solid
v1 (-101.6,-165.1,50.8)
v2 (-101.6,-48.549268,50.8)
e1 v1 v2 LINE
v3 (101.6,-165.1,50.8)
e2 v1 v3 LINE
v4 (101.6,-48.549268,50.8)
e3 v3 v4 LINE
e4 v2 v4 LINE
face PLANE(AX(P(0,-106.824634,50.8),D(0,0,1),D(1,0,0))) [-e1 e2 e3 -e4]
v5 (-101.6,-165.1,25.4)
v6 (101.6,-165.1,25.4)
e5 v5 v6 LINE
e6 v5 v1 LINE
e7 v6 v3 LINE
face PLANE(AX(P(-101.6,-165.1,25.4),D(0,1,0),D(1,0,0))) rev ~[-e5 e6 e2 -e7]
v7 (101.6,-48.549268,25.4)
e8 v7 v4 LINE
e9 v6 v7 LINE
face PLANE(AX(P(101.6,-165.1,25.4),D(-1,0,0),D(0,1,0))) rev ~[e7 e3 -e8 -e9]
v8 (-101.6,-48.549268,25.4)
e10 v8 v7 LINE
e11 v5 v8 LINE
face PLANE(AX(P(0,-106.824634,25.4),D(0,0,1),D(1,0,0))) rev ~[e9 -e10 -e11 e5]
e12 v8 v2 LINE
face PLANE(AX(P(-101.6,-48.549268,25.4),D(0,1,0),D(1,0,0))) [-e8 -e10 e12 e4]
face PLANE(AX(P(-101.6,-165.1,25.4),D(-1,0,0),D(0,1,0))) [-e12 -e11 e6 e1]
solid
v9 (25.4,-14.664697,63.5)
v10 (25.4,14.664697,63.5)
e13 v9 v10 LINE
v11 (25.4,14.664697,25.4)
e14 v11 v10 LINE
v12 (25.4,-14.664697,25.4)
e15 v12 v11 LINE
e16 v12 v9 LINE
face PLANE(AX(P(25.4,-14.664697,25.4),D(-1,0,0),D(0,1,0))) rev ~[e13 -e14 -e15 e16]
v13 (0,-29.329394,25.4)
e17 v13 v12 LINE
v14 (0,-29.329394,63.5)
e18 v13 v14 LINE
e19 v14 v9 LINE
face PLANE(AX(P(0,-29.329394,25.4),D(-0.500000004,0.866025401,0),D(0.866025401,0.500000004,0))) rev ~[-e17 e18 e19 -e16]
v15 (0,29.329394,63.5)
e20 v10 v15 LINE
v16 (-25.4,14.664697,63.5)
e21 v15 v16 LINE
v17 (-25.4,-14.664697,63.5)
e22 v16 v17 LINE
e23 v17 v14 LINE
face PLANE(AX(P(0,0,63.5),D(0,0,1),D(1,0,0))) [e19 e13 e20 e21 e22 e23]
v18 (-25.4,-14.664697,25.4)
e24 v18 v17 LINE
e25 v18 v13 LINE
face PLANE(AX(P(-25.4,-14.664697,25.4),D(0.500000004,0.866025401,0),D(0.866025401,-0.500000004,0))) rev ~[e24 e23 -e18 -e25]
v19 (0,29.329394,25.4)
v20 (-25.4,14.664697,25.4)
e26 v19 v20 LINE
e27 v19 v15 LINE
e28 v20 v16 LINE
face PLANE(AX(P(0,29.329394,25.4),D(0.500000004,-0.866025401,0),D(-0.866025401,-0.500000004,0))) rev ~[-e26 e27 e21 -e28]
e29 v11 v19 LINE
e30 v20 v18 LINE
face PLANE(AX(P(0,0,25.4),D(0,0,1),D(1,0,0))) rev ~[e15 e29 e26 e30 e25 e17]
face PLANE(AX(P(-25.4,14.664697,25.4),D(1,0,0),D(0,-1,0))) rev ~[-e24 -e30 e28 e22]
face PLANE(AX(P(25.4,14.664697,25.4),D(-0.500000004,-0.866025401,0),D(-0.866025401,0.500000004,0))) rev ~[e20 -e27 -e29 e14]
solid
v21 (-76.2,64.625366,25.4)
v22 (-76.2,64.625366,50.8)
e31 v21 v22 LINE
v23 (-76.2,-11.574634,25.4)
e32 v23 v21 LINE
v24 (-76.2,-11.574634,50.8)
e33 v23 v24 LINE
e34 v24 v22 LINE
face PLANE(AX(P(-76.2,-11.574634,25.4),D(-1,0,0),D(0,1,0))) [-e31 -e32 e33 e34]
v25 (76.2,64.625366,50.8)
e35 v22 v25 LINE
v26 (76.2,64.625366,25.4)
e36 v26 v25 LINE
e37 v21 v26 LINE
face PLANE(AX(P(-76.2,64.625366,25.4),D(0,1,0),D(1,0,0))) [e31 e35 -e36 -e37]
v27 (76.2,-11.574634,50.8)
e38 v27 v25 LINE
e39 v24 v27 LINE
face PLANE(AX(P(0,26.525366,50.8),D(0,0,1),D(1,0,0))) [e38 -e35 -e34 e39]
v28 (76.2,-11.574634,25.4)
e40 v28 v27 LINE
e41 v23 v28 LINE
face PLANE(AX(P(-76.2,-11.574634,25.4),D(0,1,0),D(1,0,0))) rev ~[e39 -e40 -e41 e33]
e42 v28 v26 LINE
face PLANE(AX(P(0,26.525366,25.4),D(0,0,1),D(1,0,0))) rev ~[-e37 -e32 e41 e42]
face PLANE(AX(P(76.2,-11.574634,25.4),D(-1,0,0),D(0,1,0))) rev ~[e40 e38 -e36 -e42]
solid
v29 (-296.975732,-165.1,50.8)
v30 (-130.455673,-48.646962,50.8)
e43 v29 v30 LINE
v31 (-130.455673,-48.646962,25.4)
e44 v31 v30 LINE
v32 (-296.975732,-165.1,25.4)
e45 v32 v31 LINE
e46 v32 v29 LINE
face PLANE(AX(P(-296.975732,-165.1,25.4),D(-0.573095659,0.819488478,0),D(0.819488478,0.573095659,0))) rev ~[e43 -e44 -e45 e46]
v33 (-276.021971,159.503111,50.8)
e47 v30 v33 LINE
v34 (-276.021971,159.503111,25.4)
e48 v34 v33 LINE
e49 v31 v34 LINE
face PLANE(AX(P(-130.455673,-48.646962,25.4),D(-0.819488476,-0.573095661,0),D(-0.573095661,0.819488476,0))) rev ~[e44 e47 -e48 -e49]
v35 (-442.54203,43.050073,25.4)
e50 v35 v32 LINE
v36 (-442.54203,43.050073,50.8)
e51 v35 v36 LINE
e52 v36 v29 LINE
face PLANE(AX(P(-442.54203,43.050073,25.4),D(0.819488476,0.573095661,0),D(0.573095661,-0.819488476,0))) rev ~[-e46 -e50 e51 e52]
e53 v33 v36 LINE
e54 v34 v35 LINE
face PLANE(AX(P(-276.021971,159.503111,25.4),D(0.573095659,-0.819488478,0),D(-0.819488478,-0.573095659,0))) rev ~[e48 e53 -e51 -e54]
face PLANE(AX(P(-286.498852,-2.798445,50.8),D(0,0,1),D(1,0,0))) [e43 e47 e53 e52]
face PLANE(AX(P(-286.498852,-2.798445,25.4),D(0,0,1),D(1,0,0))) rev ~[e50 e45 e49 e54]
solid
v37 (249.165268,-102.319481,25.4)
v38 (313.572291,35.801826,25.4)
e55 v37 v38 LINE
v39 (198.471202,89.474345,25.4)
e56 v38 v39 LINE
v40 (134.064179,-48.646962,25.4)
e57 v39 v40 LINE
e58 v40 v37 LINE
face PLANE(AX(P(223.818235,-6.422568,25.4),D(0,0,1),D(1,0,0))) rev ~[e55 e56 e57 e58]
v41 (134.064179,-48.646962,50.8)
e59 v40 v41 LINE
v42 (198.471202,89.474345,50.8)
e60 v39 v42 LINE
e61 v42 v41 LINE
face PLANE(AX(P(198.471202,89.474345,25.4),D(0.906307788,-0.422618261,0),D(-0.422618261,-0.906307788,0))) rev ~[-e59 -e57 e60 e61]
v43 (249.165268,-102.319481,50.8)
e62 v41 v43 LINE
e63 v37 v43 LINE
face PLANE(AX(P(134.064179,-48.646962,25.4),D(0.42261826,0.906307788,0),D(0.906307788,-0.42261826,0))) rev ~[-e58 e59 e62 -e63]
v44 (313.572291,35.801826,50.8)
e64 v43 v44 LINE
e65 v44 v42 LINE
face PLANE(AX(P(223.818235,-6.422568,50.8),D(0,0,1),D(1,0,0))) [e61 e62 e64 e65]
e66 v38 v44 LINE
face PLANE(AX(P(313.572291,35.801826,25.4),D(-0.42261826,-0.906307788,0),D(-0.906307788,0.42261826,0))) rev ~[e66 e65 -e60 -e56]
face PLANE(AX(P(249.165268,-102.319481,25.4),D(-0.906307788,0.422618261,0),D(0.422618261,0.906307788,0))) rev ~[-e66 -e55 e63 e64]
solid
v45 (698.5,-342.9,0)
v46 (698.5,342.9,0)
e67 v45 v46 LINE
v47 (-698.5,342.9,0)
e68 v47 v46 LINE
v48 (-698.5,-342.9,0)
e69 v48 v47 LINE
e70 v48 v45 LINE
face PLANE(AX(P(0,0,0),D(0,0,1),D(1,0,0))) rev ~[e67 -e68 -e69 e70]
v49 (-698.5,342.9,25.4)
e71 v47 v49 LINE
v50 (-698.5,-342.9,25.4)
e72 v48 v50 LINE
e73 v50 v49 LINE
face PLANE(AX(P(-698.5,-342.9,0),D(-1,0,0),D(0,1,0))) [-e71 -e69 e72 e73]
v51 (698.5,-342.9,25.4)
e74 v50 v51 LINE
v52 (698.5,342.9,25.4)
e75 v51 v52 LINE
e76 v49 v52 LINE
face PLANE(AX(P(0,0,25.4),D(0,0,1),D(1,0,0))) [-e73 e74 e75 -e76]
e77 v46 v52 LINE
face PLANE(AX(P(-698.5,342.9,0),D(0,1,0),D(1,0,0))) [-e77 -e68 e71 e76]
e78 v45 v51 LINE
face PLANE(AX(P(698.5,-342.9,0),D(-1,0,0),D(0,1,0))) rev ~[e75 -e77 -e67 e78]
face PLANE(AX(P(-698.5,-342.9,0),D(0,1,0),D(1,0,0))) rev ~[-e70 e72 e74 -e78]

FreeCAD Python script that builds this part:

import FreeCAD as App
import Part
import Sketcher
Q = App.Units.Quantity


def add_polygon(sketch, points):
    """Adds a closed chain of lines whose ends are joined by coincident constraints."""
    first, n = sketch.GeometryCount, len(points)
    for a, b in zip(points, points[1:] + points[:1]):
        sketch.addGeometry(Part.LineSegment(App.Vector(*a, 0), App.Vector(*b, 0)), False)
    for i in range(n):
        sketch.addConstraint(Sketcher.Constraint("Coincident", first + i, 2, first + (i + 1) % n, 1))

doc = App.newDocument("Part")
body = doc.addObject("PartDesign::Body", "Body")

# Sketch on XY plane
sketch1 = body.newObject("Sketcher::SketchObject", "Sketch")
sketch1.AttachmentSupport = (doc.getObject("XY_Plane"), [""])
sketch1.MapMode = "FlatFace"
add_polygon(sketch1, [(-698, 343), (-698, -343), (698, -343), (698, 343)])  # lines 0-3
sketch1.addConstraint([
    Sketcher.Constraint("Vertical", 0),
    Sketcher.Constraint("Horizontal", 1),
    Sketcher.Constraint("Vertical", 2),
    Sketcher.Constraint("Horizontal", 3),
    Sketcher.Constraint("Symmetric", 0, 2, 2, 2, -1, 1),
    Sketcher.Constraint("DistanceX", 1, 1, 1, 2, Q("55 in")),
    Sketcher.Constraint("DistanceY", 0, 2, 0, 1, Q("27 in")),
])
pad1 = body.newObject("PartDesign::Pad", "Pad")
pad1.Profile = sketch1
pad1.Length = Q("1 in")
body2 = doc.addObject("PartDesign::Body", "Body001")
body2.AllowCompound = True

# Sketch on XY plane
sketch2 = body2.newObject("Sketcher::SketchObject", "Sketch001")
sketch2.AttachmentSupport = (doc.getObject("XY_Plane001"), [""])
sketch2.MapMode = "FlatFace"
sketch2.AttachmentOffset = App.Placement(App.Vector(0, 0, 1 * 25.4), App.Rotation())
add_polygon(sketch2, [(-102, -49), (-102, -165), (102, -165), (102, -49)])  # lines 0-3
add_polygon(sketch2, [(-297, -165), (-130, -49), (-276, 160), (-443, 43)])  # lines 4-7
add_polygon(sketch2, [(314, 36), (198, 89), (134, -49), (249, -102)])  # lines 8-11
add_polygon(sketch2, [(-76, 65), (-76, -12), (76, -12), (76, 65)])  # lines 12-15
sketch2.addConstraint([
    Sketcher.Constraint("Vertical", 0),
    Sketcher.Constraint("Horizontal", 1),
    Sketcher.Constraint("Vertical", 2),
    Sketcher.Constraint("Horizontal", 3),
    Sketcher.Constraint("Vertical", 12),
    Sketcher.Constraint("Horizontal", 13),
    Sketcher.Constraint("Vertical", 14),
    Sketcher.Constraint("Horizontal", 15),
    Sketcher.Constraint("Perpendicular", 4, 5),
    Sketcher.Constraint("Perpendicular", 5, 6),
    Sketcher.Constraint("Perpendicular", 6, 7),
    Sketcher.Constraint("Perpendicular", 8, 9),
    Sketcher.Constraint("Perpendicular", 9, 10),
    Sketcher.Constraint("Perpendicular", 10, 11),
    Sketcher.Constraint("Horizontal", 1, 2, 7, 2),
    Sketcher.Constraint("Horizontal", 4, 2, 9, 2),
    Sketcher.Constraint("DistanceX", 1, 1, 1, 2, Q("8 in")),
    Sketcher.Constraint("DistanceX", 13, 1, 13, 2, Q("6 in")),
    Sketcher.Constraint("DistanceY", 12, 2, 12, 1, Q("3 in")),
    Sketcher.Constraint("Distance", 4, Q("8 in")),
    Sketcher.Constraint("Distance", 5, Q("10 in")),
    Sketcher.Constraint("Distance", 8, Q("5 in")),
    Sketcher.Constraint("Distance", 9, Q("6 in")),
    Sketcher.Constraint("DistanceX", 0, 2, -1, 1, Q("4 in")),
    Sketcher.Constraint("DistanceX", 12, 2, -1, 1, Q("3 in")),
    Sketcher.Constraint("Angle", 8, Q("155 deg")),
    Sketcher.Constraint("DistanceY", 0, 2, -1, 1, Q("6.5 in")),
    Sketcher.Constraint("DistanceY", 0, 2, 0, 1, Q("116.550732 mm")),
    Sketcher.Constraint("DistanceX", -1, 1, 8, 2, Q("198.471202 mm")),
    Sketcher.Constraint("DistanceX", 5, 2, 4, 2, Q("145.566298 mm")),
    Sketcher.Constraint("DistanceX", 5, 2, -1, 1, Q("276.021971 mm")),
    Sketcher.Constraint("DistanceY", 13, 2, 8, 2, Q("101.048979 mm")),
])
pad2 = body2.newObject("PartDesign::Pad", "Pad001")
pad2.Profile = sketch2
pad2.Length = Q("1 in")
body3 = doc.addObject("PartDesign::Body", "Body002")

# Sketch on XY plane
sketch3 = body3.newObject("Sketcher::SketchObject", "Sketch002")
sketch3.AttachmentSupport = (doc.getObject("XY_Plane002"), [""])
sketch3.MapMode = "FlatFace"
sketch3.AttachmentOffset = App.Placement(App.Vector(0, 0, 1 * 25.4), App.Rotation())
add_polygon(sketch3, [(25, -15), (25, 15), (0, 29), (-25, 15), (-25, -15), (0, -29)])  # lines 0-5
sketch3.addConstraint([
    Sketcher.Constraint("Vertical", 0),
    Sketcher.Constraint("Vertical", 3),
    Sketcher.Constraint("Symmetric", 0, 2, 3, 2, -1, 1),
    Sketcher.Constraint("Symmetric", 1, 2, 4, 2, -1, 1),
    Sketcher.Constraint("PointOnObject", 1, 2, -2),
    Sketcher.Constraint("Parallel", 2, 5),
    Sketcher.Constraint("Horizontal", 0, 2, 2, 2),
    Sketcher.Constraint("DistanceX", -1, 1, 0, 2, Q("1 in")),
    Sketcher.Constraint("Angle", 1, Q("150 deg")),
    Sketcher.Constraint("DistanceY", 0, 1, 0, 2, Q("29.329394 mm")),
])
pad3 = body3.newObject("PartDesign::Pad", "Pad002")
pad3.Profile = sketch3
pad3.Length = Q("1.5 in")

doc.recompute()
